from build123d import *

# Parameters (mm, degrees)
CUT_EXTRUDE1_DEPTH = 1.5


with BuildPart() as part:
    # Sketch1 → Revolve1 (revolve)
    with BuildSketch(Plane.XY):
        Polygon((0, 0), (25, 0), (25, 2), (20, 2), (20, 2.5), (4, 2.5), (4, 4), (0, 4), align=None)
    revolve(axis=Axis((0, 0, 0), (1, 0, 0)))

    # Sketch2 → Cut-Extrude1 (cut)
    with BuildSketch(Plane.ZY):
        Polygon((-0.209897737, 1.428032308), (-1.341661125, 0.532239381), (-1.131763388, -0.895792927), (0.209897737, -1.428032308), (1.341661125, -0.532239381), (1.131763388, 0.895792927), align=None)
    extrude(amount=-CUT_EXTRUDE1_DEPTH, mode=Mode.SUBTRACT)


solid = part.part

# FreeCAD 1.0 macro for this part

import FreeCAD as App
import Part
import Sketcher


def add_polygon(sketch, points):
    """Adds a closed chain of lines whose ends are joined by coincident constraints."""
    first, n = sketch.GeometryCount, len(points)
    for a, b in zip(points, points[1:] + points[:1]):
        sketch.addGeometry(Part.LineSegment(App.Vector(*a, 0), App.Vector(*b, 0)), False)
    for i in range(n):
        sketch.addConstraint(Sketcher.Constraint("Coincident", first + i, 2, first + (i + 1) % n, 1))

doc = App.newDocument("Part")
body = doc.addObject("PartDesign::Body", "Body")

# Sketch on XY plane
sketch1 = doc.addObject("Sketcher::SketchObject", "Sketch")
body.addObject(sketch1)
sketch1.AttachmentSupport = (doc.XY_Plane, [""])
sketch1.MapMode = "FlatFace"
add_polygon(sketch1, [(0, 0), (25, 0), (25, 2), (20, 2), (20, 2.5), (4, 2.5), (4, 4), (0, 4)])  # lines 0-7
sketch1.addConstraint(Sketcher.Constraint("Horizontal", 0))
sketch1.addConstraint(Sketcher.Constraint("Vertical", 1))
sketch1.addConstraint(Sketcher.Constraint("Horizontal", 2))
sketch1.addConstraint(Sketcher.Constraint("Vertical", 3))
sketch1.addConstraint(Sketcher.Constraint("Horizontal", 4))
sketch1.addConstraint(Sketcher.Constraint("Vertical", 5))
sketch1.addConstraint(Sketcher.Constraint("Horizontal", 6))
sketch1.addConstraint(Sketcher.Constraint("Vertical", 7))
sketch1.addConstraint(Sketcher.Constraint("Coincident", 7, 2, -1, 1))
sketch1.addConstraint(Sketcher.Constraint("Equal", 6, 7))
sketch1.addConstraint(Sketcher.Constraint("DistanceX", 0, 1, 0, 2, 25.0))
sketch1.addConstraint(Sketcher.Constraint("DistanceX", 2, 2, 2, 1, 5.0))
sketch1.addConstraint(Sketcher.Constraint("DistanceX", 4, 2, 4, 1, 16.0))
sketch1.addConstraint(Sketcher.Constraint("DistanceY", 1, 1, 1, 2, 2.0))
sketch1.addConstraint(Sketcher.Constraint("DistanceY", 3, 1, 3, 2, 0.5))
revolution = doc.addObject("PartDesign::Revolution", "Revolution")
body.addObject(revolution)
revolution.Profile = sketch1
revolution.ReferenceAxis = (sketch1, ["H_Axis"])
revolution.Angle = 360

# Sketch on YZ plane
sketch2 = doc.addObject("Sketcher::SketchObject", "Sketch001")
body.addObject(sketch2)
sketch2.AttachmentSupport = (doc.YZ_Plane, [""])
sketch2.MapMode = "FlatFace"
add_polygon(sketch2, [(1.4, -0.2), (0.5, -1.3), (-0.9, -1.1), (-1.4, 0.2), (-0.5, 1.3), (0.9, 1.1)])  # lines 0-5
sketch2.addConstraint(Sketcher.Constraint("Symmetric", 0, 2, 3, 2, -1, 1))
sketch2.addConstraint(Sketcher.Constraint("Symmetric", 1, 2, 4, 2, -1, 1))
sketch2.addConstraint(Sketcher.Constraint("Symmetric", 2, 2, 5, 2, -1, 1))
sketch2.addConstraint(Sketcher.Constraint("Equal", 0, 1))
sketch2.addConstraint(Sketcher.Constraint("Equal", 1, 2))
sketch2.addConstraint(Sketcher.Constraint("DistanceX", -1, 1, 0, 2, 0.532239))
sketch2.addConstraint(Sketcher.Constraint("DistanceY", 0, 2, -1, 1, 1.341661))
sketch2.addConstraint(Sketcher.Constraint("DistanceX", 2, 2, 1, 2, 0.532239))
sketch2.addConstraint(Sketcher.Constraint("DistanceY", 1, 2, 2, 2, 1.341661))
pocket1 = doc.addObject("PartDesign::Pocket", "Pocket")
body.addObject(pocket1)
pocket1.Profile = sketch2
pocket1.Length = 1.5
pocket1.Reversed = True

doc.recompute()
